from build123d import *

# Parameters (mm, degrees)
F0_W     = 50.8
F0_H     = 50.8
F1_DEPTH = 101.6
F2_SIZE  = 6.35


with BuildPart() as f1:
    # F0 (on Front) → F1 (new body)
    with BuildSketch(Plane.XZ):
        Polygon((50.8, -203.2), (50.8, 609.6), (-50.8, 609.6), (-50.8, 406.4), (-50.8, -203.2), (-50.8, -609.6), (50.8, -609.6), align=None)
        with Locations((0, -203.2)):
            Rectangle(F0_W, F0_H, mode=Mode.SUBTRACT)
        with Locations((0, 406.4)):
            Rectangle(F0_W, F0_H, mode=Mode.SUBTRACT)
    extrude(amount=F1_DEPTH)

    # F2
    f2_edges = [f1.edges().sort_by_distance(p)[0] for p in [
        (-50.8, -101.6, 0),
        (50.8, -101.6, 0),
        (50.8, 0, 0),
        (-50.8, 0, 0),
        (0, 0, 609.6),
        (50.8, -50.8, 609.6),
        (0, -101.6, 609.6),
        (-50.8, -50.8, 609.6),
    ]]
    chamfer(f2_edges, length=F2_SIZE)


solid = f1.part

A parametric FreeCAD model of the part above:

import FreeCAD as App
import Part
import Sketcher
Q = App.Units.Quantity


def edges_at(feature, points):
    """Names of the edges that pass closest to the given points."""
    edges = feature.Shape.Edges
    near = lambda p: min(range(len(edges)), key=lambda i: edges[i].distToShape(Part.Vertex(*p))[0])
    return sorted({f"Edge{near(p) + 1}" for p in points})


def add_polygon(sketch, points):
    """Adds a closed chain of lines whose ends are joined by coincident constraints."""
    first, n = sketch.GeometryCount, len(points)
    for a, b in zip(points, points[1:] + points[:1]):
        sketch.addGeometry(Part.LineSegment(App.Vector(*a, 0), App.Vector(*b, 0)), False)
    for i in range(n):
        sketch.addConstraint(Sketcher.Constraint("Coincident", first + i, 2, first + (i + 1) % n, 1))

doc = App.newDocument("Part")
params = doc.addObject("Spreadsheet::Sheet", "Params")
for row, (alias, value) in enumerate([
    ("sketch1_width", "4 in"),
    ("sketch1_width2", "2 in"),
    ("sketch1_height", "48 in"),
    ("pad1_length", "4 in"),
    ("chamfer_size", "0.25 in"),
], start=1):
    params.set(f"A{row}", alias)
    params.set(f"B{row}", "=" + value)
    params.setAlias(f"B{row}", alias)

body = doc.addObject("PartDesign::Body", "Body")

sketch1 = body.newObject("Sketcher::SketchObject", "Sketch")
sketch1.AttachmentSupport = (doc.getObject("XZ_Plane"), [""])
sketch1.MapMode = "FlatFace"
add_polygon(sketch1, [(50.8, 609.6), (-50.8, 609.6), (-50.8, -609.6), (50.8, -609.6)])
add_polygon(sketch1, [(25.4, -228.6), (-25.4, -228.6), (-25.4, -177.8), (25.4, -177.8)])
add_polygon(sketch1, [(25.4, 381), (-25.4, 381), (-25.4, 431.8), (25.4, 431.8)])
sketch1.addConstraint([
    Sketcher.Constraint("Horizontal", 0),
    Sketcher.Constraint("Vertical", 1),
    Sketcher.Constraint("Horizontal", 2),
    Sketcher.Constraint("Vertical", 3),
    Sketcher.Constraint("Horizontal", 4),
    Sketcher.Constraint("Vertical", 5),
    Sketcher.Constraint("Horizontal", 6),
    Sketcher.Constraint("Vertical", 7),
    Sketcher.Constraint("Horizontal", 8),
    Sketcher.Constraint("Vertical", 9),
    Sketcher.Constraint("Horizontal", 10),
    Sketcher.Constraint("Vertical", 11),
    Sketcher.Constraint("Symmetric", 0, 2, 2, 2, -1, 1),
    Sketcher.Constraint("Vertical", 5, 2, 8, 2),
    Sketcher.Constraint("Vertical", 7, 2, 10, 2),
    Sketcher.Constraint("Equal", 10, 5),
    Sketcher.Constraint("Equal", 7, 9),
    Sketcher.Constraint("DistanceX", 0, 2, 0, 1, Q("4 in")),
    Sketcher.Constraint("DistanceX", 4, 2, 4, 1, Q("2 in")),
    Sketcher.Constraint("DistanceY", 1, 2, 1, 1, Q("48 in")),
    Sketcher.Constraint("DistanceX", 4, 2, -1, 1, Q("1 in")),
    Sketcher.Constraint("DistanceY", 4, 2, -1, 1, Q("9 in")),
    Sketcher.Constraint("DistanceY", -1, 1, 8, 2, Q("15 in")),
])
sketch1.setExpression("Constraints[29]", "Params.sketch1_width")
sketch1.setExpression("Constraints[30]", "Params.sketch1_width2")
sketch1.setExpression("Constraints[31]", "Params.sketch1_height")
pad1 = body.newObject("PartDesign::Pad", "Pad")
pad1.Profile = sketch1
pad1.setExpression("Length", "Params.pad1_length")
doc.recompute()

chamfer = body.newObject("PartDesign::Chamfer", "Chamfer")
chamfer.Base = (pad1, edges_at(pad1, [
    (-50.8, -101.6, 0),
    (50.8, -101.6, 0),
    (50.8, 0, 0),
    (-50.8, 0, 0),
    (0, 0, 609.6),
    (50.8, -50.8, 609.6),
    (0, -101.6, 609.6),
    (-50.8, -50.8, 609.6),
]))
chamfer.setExpression("Size", "Params.chamfer_size")

doc.recompute()
